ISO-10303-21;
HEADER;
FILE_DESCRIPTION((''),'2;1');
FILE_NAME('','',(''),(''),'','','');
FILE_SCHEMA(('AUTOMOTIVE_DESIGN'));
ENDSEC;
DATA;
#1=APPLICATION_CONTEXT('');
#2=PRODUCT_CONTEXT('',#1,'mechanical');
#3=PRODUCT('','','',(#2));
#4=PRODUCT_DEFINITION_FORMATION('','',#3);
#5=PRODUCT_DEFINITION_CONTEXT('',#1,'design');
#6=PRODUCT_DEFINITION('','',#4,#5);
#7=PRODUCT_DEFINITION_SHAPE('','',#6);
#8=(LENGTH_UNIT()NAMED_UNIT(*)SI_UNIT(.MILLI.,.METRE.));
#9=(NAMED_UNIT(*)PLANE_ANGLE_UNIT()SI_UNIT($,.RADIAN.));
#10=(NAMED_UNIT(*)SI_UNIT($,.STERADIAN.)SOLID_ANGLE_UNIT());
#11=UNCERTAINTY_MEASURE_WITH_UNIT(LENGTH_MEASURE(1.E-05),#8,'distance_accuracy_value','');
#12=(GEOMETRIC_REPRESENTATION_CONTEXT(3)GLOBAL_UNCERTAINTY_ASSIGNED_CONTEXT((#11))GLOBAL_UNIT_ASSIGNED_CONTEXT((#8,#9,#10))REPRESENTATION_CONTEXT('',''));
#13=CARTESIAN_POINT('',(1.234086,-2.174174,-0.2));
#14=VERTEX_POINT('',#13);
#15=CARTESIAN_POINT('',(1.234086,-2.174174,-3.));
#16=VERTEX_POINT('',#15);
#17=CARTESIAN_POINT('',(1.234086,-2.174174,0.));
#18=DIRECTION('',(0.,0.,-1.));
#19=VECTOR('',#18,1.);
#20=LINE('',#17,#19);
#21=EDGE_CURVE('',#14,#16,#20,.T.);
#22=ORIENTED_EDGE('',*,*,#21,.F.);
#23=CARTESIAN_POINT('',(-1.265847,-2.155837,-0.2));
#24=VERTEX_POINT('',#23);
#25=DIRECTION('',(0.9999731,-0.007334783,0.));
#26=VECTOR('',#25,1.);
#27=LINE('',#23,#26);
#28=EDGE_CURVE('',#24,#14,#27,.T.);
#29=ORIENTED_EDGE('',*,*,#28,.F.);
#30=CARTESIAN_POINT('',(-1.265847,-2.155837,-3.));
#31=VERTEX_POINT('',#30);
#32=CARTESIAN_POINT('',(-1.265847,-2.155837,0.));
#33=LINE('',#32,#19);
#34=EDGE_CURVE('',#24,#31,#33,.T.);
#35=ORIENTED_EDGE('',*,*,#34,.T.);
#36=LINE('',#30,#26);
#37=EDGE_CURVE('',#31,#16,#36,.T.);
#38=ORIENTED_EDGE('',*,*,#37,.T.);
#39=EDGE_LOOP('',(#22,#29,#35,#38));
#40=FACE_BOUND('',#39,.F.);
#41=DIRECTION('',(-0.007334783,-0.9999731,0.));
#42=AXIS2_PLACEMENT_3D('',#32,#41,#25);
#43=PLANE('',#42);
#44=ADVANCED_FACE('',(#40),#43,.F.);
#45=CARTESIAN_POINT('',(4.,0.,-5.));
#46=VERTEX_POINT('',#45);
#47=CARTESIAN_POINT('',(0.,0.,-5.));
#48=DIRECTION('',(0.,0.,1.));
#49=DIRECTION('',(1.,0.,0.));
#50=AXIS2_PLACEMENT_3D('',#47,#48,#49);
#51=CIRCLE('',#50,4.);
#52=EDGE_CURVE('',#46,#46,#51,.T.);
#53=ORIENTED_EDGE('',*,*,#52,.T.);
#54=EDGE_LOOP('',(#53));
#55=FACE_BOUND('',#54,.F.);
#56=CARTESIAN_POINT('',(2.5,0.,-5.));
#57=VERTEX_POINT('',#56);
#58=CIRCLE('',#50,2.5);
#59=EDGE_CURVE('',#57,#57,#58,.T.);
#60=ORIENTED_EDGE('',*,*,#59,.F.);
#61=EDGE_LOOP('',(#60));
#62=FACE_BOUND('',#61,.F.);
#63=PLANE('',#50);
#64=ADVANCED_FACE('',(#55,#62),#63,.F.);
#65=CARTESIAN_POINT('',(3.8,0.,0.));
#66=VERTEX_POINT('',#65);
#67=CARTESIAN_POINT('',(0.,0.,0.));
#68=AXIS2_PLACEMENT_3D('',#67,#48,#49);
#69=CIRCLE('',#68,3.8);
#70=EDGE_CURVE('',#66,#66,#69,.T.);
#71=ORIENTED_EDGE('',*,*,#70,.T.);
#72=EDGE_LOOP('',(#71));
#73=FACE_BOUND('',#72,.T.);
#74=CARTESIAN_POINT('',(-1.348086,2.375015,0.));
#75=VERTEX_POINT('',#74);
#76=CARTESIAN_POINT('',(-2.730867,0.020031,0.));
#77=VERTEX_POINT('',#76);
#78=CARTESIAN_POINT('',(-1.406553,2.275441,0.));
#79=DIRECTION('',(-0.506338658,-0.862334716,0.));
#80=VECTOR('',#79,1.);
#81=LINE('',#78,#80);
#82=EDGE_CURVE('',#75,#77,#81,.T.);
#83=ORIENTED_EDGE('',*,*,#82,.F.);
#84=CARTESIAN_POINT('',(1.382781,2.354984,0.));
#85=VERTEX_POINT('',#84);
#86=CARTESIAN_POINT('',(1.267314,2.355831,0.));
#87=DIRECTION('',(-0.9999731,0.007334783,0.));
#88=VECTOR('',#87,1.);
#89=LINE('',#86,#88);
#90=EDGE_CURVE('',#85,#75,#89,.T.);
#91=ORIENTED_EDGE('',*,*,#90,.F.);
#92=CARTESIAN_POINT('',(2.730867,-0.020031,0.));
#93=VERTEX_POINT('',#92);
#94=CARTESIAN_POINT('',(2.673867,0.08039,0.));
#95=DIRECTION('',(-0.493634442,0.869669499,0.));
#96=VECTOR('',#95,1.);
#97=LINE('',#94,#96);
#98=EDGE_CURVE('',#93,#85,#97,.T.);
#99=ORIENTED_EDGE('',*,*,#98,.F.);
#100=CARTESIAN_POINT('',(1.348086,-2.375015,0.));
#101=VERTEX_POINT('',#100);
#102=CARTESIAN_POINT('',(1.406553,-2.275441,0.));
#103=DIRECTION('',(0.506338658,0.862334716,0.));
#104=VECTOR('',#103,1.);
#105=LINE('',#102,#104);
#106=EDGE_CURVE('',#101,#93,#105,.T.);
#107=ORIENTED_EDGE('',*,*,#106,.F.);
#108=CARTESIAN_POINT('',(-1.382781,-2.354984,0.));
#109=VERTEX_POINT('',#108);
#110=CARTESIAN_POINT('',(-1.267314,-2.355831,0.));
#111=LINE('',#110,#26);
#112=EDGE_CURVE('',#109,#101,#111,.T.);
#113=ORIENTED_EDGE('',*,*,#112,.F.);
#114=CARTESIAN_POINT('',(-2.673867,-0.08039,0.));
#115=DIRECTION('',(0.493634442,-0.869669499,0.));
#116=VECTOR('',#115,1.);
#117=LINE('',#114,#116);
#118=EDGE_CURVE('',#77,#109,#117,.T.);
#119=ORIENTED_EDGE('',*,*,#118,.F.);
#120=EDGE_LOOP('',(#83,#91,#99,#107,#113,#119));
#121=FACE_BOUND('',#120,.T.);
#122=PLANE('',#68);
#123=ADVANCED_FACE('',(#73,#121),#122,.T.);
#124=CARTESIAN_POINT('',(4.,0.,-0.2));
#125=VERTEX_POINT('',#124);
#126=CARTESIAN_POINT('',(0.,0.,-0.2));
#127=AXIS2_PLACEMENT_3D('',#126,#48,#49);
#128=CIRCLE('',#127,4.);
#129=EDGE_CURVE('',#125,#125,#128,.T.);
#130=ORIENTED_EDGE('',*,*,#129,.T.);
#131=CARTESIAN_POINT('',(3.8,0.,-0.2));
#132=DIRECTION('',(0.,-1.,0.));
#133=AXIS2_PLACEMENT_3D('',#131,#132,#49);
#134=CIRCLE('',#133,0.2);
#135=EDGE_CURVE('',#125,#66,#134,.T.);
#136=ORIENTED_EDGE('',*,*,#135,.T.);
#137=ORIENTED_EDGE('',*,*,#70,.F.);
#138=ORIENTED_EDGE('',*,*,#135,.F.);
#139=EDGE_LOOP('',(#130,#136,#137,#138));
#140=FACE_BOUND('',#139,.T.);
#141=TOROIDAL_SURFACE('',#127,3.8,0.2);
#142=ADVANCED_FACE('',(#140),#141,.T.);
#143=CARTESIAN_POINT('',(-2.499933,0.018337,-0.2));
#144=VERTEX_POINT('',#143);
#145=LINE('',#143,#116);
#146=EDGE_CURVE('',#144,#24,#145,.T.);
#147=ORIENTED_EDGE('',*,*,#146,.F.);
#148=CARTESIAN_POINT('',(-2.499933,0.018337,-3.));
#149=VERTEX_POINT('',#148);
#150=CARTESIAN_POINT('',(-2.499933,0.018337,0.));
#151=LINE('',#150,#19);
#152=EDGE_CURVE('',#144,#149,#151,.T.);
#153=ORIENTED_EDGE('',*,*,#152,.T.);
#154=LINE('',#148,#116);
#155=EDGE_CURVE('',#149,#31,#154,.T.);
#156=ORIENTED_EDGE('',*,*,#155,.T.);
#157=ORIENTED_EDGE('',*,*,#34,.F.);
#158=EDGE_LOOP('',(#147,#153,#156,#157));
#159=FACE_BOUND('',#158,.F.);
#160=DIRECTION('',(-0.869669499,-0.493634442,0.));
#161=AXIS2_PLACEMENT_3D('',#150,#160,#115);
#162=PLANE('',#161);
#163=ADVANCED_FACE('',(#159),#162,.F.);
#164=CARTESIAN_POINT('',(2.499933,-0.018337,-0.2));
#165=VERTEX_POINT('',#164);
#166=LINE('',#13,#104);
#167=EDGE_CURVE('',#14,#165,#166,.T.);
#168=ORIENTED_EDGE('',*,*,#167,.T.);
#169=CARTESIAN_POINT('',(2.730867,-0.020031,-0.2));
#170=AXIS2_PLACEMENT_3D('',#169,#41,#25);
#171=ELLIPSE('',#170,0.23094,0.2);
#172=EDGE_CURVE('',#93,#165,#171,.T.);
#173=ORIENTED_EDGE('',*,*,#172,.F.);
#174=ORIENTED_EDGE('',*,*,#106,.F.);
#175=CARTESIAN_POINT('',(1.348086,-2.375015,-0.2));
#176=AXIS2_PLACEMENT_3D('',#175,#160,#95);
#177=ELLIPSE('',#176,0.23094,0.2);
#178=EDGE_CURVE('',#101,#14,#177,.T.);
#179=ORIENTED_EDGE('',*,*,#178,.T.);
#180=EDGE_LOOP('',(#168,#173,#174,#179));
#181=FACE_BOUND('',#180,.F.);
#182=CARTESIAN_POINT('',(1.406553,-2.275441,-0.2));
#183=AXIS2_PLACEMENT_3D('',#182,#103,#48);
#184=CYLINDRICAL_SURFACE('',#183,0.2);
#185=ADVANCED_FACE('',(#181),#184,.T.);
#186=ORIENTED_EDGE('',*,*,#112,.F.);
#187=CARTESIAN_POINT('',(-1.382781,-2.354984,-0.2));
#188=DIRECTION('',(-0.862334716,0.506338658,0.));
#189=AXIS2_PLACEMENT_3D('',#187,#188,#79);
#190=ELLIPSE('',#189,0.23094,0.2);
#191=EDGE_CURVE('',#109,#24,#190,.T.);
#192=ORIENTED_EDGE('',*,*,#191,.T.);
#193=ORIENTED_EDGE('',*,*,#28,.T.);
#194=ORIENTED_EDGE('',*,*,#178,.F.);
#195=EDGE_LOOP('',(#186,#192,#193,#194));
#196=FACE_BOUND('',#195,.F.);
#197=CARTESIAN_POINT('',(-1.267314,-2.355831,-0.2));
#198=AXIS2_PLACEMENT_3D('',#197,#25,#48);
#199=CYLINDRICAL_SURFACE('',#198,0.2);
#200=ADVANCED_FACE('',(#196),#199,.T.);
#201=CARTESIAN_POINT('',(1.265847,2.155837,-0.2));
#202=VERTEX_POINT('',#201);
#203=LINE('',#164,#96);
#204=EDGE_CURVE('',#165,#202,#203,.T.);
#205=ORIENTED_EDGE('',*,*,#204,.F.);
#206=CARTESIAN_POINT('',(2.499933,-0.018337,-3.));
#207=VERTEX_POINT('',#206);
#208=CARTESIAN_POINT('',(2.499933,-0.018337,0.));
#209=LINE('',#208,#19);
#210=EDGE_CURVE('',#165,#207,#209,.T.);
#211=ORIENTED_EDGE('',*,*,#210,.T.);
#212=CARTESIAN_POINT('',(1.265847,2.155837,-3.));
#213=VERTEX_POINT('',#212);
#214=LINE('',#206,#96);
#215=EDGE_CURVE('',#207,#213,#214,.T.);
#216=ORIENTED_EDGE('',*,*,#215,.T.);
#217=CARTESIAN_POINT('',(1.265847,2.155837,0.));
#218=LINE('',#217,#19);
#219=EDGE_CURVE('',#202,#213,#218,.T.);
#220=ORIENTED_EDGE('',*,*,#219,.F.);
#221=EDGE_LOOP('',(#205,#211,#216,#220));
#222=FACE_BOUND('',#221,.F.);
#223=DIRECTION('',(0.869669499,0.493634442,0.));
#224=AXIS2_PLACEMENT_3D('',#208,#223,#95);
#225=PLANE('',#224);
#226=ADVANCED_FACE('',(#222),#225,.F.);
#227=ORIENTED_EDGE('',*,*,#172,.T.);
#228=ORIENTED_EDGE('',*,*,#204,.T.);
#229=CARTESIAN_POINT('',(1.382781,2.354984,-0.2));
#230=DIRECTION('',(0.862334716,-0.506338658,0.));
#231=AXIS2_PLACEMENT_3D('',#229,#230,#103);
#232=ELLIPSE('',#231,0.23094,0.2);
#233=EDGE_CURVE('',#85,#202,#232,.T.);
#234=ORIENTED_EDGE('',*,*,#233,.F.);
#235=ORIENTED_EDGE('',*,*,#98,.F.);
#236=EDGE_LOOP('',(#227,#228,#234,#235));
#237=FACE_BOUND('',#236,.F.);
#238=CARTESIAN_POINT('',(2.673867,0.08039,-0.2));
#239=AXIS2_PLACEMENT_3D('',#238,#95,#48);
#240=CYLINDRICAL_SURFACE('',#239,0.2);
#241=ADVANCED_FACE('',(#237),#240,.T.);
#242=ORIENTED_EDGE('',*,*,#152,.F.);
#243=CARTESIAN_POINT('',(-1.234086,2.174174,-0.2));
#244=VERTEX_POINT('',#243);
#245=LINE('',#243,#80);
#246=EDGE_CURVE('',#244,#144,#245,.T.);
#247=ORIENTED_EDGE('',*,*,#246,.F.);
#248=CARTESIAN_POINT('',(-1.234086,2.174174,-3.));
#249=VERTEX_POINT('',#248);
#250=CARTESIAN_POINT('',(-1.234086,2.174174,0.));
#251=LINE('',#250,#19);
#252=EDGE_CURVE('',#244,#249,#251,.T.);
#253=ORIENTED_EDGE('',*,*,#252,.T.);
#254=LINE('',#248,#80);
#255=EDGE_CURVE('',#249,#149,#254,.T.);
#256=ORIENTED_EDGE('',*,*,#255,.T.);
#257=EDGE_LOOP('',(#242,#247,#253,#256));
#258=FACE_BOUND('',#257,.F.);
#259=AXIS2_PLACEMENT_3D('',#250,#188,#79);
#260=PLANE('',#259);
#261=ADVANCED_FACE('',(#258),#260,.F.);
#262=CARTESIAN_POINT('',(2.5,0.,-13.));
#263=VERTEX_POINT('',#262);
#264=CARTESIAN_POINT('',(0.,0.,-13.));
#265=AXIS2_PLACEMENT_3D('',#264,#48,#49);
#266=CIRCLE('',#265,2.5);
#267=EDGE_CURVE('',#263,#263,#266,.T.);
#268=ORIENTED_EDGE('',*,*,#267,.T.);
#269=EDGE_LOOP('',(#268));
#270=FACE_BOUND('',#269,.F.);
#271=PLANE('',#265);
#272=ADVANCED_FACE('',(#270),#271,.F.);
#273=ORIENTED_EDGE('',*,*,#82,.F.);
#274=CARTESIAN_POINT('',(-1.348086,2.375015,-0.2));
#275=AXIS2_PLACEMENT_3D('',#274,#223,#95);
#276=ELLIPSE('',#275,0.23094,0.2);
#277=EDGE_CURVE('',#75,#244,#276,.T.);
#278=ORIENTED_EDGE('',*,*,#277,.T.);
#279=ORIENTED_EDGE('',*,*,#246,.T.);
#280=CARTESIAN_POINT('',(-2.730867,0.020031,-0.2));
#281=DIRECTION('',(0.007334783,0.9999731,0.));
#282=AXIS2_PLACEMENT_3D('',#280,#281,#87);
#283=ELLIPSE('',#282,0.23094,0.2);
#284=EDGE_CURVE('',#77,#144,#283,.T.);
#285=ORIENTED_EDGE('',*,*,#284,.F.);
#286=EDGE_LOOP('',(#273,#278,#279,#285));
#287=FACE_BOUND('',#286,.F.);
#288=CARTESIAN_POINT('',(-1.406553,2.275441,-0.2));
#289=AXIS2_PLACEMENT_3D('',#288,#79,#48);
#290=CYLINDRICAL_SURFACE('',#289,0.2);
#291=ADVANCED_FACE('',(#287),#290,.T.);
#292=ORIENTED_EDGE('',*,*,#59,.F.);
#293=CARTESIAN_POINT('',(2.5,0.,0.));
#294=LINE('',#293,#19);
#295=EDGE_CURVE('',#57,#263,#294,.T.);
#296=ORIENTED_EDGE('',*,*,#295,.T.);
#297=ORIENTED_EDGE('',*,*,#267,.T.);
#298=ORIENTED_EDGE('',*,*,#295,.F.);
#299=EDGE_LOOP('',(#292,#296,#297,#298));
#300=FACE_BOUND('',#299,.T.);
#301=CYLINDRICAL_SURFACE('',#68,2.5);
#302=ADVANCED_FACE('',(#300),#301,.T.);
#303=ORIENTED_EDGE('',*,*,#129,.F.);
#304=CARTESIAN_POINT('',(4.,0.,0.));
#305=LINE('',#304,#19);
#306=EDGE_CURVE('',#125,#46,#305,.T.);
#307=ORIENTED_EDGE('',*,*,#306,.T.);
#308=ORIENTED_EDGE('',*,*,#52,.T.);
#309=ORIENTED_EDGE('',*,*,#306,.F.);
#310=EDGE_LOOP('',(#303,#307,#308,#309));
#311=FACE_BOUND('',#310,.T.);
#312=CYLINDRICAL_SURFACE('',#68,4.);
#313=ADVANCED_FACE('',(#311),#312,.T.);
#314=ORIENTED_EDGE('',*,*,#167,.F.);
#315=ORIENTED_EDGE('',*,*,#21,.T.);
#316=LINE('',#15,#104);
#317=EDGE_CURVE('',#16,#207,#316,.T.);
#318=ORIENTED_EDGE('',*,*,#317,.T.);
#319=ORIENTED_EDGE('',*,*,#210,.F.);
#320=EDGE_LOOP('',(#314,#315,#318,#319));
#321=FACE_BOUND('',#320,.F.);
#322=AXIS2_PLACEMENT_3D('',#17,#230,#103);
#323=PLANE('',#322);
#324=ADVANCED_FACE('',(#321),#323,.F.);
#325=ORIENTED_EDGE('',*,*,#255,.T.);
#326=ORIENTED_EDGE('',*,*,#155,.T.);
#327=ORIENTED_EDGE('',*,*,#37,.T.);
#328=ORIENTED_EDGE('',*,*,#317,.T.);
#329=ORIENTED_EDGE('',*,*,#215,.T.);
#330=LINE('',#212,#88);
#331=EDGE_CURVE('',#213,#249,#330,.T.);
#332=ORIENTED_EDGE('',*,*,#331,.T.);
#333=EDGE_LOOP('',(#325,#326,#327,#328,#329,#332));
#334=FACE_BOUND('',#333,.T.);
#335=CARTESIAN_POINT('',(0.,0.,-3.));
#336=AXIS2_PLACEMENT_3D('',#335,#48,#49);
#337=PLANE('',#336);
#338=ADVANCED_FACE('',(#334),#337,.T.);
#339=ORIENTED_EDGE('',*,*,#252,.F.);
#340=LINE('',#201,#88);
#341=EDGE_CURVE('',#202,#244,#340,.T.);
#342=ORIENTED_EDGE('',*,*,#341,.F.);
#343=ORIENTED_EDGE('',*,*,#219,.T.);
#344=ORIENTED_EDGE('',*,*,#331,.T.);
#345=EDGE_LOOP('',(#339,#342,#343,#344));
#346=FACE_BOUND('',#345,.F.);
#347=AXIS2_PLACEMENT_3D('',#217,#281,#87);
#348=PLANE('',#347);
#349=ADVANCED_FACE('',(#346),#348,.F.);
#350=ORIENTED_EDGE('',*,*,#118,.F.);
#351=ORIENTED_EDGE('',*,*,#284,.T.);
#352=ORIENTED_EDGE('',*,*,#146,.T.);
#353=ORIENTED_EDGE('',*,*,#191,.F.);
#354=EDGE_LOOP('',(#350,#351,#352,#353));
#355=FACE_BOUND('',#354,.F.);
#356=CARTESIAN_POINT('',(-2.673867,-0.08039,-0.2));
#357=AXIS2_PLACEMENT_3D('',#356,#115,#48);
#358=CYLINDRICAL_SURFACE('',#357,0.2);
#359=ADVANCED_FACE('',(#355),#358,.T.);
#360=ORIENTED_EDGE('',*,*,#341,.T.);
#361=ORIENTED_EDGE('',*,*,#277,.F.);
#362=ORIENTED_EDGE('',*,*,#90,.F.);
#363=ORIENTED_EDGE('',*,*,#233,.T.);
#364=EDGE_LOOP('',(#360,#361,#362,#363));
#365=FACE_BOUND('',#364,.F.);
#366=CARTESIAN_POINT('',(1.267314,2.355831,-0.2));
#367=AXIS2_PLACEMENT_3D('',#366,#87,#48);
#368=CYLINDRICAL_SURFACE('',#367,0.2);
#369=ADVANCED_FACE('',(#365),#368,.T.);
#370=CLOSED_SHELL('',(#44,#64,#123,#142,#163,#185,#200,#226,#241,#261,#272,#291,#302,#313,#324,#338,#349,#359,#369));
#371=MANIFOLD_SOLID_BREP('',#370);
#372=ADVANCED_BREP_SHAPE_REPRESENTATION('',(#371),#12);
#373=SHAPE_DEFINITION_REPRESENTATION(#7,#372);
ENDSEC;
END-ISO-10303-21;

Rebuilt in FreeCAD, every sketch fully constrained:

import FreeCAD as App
import Part
import Sketcher
Q = App.Units.Quantity


def edges_at(feature, points):
    """Names of the edges that pass closest to the given points."""
    edges = feature.Shape.Edges
    near = lambda p: min(range(len(edges)), key=lambda i: edges[i].distToShape(Part.Vertex(*p))[0])
    return sorted({f"Edge{near(p) + 1}" for p in points})

doc = App.newDocument("Part")
body = doc.addObject("PartDesign::Body", "Body")

# Sketch on XY plane
sketch1 = doc.addObject("Sketcher::SketchObject", "Sketch")
body.addObject(sketch1)
sketch1.AttachmentSupport = (doc.XY_Plane, [""])
sketch1.MapMode = "FlatFace"
sketch1.addGeometry(Part.Circle(App.Vector(0, 0, 0), App.Vector(0, 0, 1), 2.5), False)
sketch1.addConstraint(Sketcher.Constraint("Coincident", 0, 3, -1, 1))
sketch1.addConstraint(Sketcher.Constraint("Diameter", 0, Q("5 mm")))
pad1 = doc.addObject("PartDesign::Pad", "Pad")
body.addObject(pad1)
pad1.Profile = sketch1
pad1.Length = 13
pad1.Reversed = True

# Sketch on XY plane
sketch2 = doc.addObject("Sketcher::SketchObject", "Sketch001")
body.addObject(sketch2)
sketch2.AttachmentSupport = (doc.XY_Plane, [""])
sketch2.MapMode = "FlatFace"
sketch2.addGeometry(Part.Circle(App.Vector(0, 0, 0), App.Vector(0, 0, 1), 4), False)
sketch2.addConstraint(Sketcher.Constraint("Coincident", 0, 3, -1, 1))
sketch2.addConstraint(Sketcher.Constraint("Diameter", 0, Q("8 mm")))
pad2 = doc.addObject("PartDesign::Pad", "Pad001")
body.addObject(pad2)
pad2.Profile = sketch2
pad2.Length = 5
pad2.Reversed = True

# Sketch on XY plane
sketch3 = doc.addObject("Sketcher::SketchObject", "Sketch002")
body.addObject(sketch3)
sketch3.AttachmentSupport = (doc.XY_Plane, [""])
sketch3.MapMode = "FlatFace"
sketch3.addGeometry(Part.LineSegment(App.Vector(2.5, 0, 0), App.Vector(1.3, 2.2, 0)), False)
sketch3.addGeometry(Part.LineSegment(App.Vector(1.3, 2.2, 0), App.Vector(-1.2, 2.2, 0)), False)
sketch3.addGeometry(Part.LineSegment(App.Vector(-1.2, 2.2, 0), App.Vector(-2.5, 0, 0)), False)
sketch3.addGeometry(Part.LineSegment(App.Vector(-2.5, 0, 0), App.Vector(-1.3, -2.2, 0)), False)
sketch3.addGeometry(Part.LineSegment(App.Vector(-1.3, -2.2, 0), App.Vector(1.2, -2.2, 0)), False)
sketch3.addGeometry(Part.LineSegment(App.Vector(1.2, -2.2, 0), App.Vector(2.5, 0, 0)), False)
sketch3.addConstraint(Sketcher.Constraint("Coincident", 0, 2, 1, 1))
sketch3.addConstraint(Sketcher.Constraint("Coincident", 1, 2, 2, 1))
sketch3.addConstraint(Sketcher.Constraint("Coincident", 2, 2, 3, 1))
sketch3.addConstraint(Sketcher.Constraint("Coincident", 3, 2, 4, 1))
sketch3.addConstraint(Sketcher.Constraint("Coincident", 4, 2, 5, 1))
sketch3.addConstraint(Sketcher.Constraint("Coincident", 5, 2, 0, 1))
sketch3.addConstraint(Sketcher.Constraint("Symmetric", 0, 2, 3, 2, -1, 1))
sketch3.addConstraint(Sketcher.Constraint("Symmetric", 1, 2, 4, 2, -1, 1))
sketch3.addConstraint(Sketcher.Constraint("Symmetric", 2, 2, 5, 2, -1, 1))
sketch3.addConstraint(Sketcher.Constraint("Equal", 0, 1))
sketch3.addConstraint(Sketcher.Constraint("Equal", 1, 2))
sketch3.addConstraint(Sketcher.Constraint("Distance", 0, Q("2.5 mm")))
sketch3.addConstraint(Sketcher.Constraint("DistanceY", 2, 2, 0, 2, Q("2.1375 mm")))
sketch3.addConstraint(Sketcher.Constraint("DistanceX", 2, 2, 0, 2, Q("3.765779 mm")))
sketch3.addConstraint(Sketcher.Constraint("DistanceX", 3, 2, 1, 2, Q("0.031761 mm")))
pocket1 = doc.addObject("PartDesign::Pocket", "Pocket")
body.addObject(pocket1)
pocket1.Profile = sketch3
pocket1.Length = 3
doc.recompute()

fillet = doc.addObject("PartDesign::Fillet", "Fillet")
body.addObject(fillet)
fillet.Base = (pocket1, edges_at(pocket1, [
    (1.867, -1.096, 0),
    (-4, 0, 0),
    (1.883, 1.069, 0),
    (0.016, 2.165, 0),
    (-1.867, 1.096, 0),
    (-1.883, -1.069, 0),
    (-0.016, -2.165, 0),
]))
fillet.Radius = 0.2

doc.recompute()
